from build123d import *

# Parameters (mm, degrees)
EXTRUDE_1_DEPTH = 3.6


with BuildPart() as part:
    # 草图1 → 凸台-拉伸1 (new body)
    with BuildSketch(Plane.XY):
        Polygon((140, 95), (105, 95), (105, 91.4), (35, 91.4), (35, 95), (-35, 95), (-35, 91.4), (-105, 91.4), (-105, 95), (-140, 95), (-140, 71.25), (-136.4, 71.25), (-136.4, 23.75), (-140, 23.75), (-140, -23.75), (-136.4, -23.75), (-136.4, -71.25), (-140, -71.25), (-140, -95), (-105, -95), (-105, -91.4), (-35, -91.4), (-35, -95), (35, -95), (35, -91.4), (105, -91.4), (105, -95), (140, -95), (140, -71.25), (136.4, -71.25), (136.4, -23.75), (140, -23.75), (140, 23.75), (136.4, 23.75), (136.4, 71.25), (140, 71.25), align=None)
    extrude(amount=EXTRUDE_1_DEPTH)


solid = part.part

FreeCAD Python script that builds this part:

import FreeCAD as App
import Part
import Sketcher
Q = App.Units.Quantity

doc = App.newDocument("Part")
body = doc.addObject("PartDesign::Body", "Body")

# Sketch on XY plane
sketch1 = body.newObject("Sketcher::SketchObject", "Sketch")
sketch1.AttachmentSupport = (doc.getObject("XY_Plane"), [""])
sketch1.MapMode = "FlatFace"
sketch1.addGeometry([
    Part.LineSegment(App.Vector(140, 95, 0), App.Vector(105, 95, 0)),  # 0
    Part.LineSegment(App.Vector(105, 95, 0), App.Vector(105, 91.4, 0)),  # 1
    Part.LineSegment(App.Vector(105, 91.4, 0), App.Vector(35, 91.4, 0)),  # 2
    Part.LineSegment(App.Vector(35, 91.4, 0), App.Vector(35, 95, 0)),  # 3
    Part.LineSegment(App.Vector(35, 95, 0), App.Vector(-35, 95, 0)),  # 4
    Part.LineSegment(App.Vector(-35, 95, 0), App.Vector(-35, 91.4, 0)),  # 5
    Part.LineSegment(App.Vector(-35, 91.4, 0), App.Vector(-105, 91.4, 0)),  # 6
    Part.LineSegment(App.Vector(-105, 91.4, 0), App.Vector(-105, 95, 0)),  # 7
    Part.LineSegment(App.Vector(-105, 95, 0), App.Vector(-140, 95, 0)),  # 8
    Part.LineSegment(App.Vector(-140, 95, 0), App.Vector(-140, 71.2, 0)),  # 9
    Part.LineSegment(App.Vector(-140, 71.2, 0), App.Vector(-136.4, 71.2, 0)),  # 10
    Part.LineSegment(App.Vector(-136.4, 71.2, 0), App.Vector(-136.4, 23.8, 0)),  # 11
    Part.LineSegment(App.Vector(-136.4, 23.8, 0), App.Vector(-140, 23.8, 0)),  # 12
    Part.LineSegment(App.Vector(-140, 23.8, 0), App.Vector(-140, -23.8, 0)),  # 13
    Part.LineSegment(App.Vector(-140, -23.8, 0), App.Vector(-136.4, -23.8, 0)),  # 14
    Part.LineSegment(App.Vector(-136.4, -23.8, 0), App.Vector(-136.4, -71.2, 0)),  # 15
    Part.LineSegment(App.Vector(-136.4, -71.2, 0), App.Vector(-140, -71.2, 0)),  # 16
    Part.LineSegment(App.Vector(-140, -71.2, 0), App.Vector(-140, -95, 0)),  # 17
    Part.LineSegment(App.Vector(-140, -95, 0), App.Vector(-105, -95, 0)),  # 18
    Part.LineSegment(App.Vector(-105, -95, 0), App.Vector(-105, -91.4, 0)),  # 19
    Part.LineSegment(App.Vector(-105, -91.4, 0), App.Vector(-35, -91.4, 0)),  # 20
    Part.LineSegment(App.Vector(-35, -91.4, 0), App.Vector(-35, -95, 0)),  # 21
    Part.LineSegment(App.Vector(-35, -95, 0), App.Vector(35, -95, 0)),  # 22
    Part.LineSegment(App.Vector(35, -95, 0), App.Vector(35, -91.4, 0)),  # 23
    Part.LineSegment(App.Vector(35, -91.4, 0), App.Vector(105, -91.4, 0)),  # 24
    Part.LineSegment(App.Vector(105, -91.4, 0), App.Vector(105, -95, 0)),  # 25
    Part.LineSegment(App.Vector(105, -95, 0), App.Vector(140, -95, 0)),  # 26
    Part.LineSegment(App.Vector(140, -95, 0), App.Vector(140, -71.2, 0)),  # 27
    Part.LineSegment(App.Vector(140, -71.2, 0), App.Vector(136.4, -71.2, 0)),  # 28
    Part.LineSegment(App.Vector(136.4, -71.2, 0), App.Vector(136.4, -23.8, 0)),  # 29
    Part.LineSegment(App.Vector(136.4, -23.8, 0), App.Vector(140, -23.8, 0)),  # 30
    Part.LineSegment(App.Vector(140, -23.8, 0), App.Vector(140, 23.8, 0)),  # 31
    Part.LineSegment(App.Vector(140, 23.8, 0), App.Vector(136.4, 23.8, 0)),  # 32
    Part.LineSegment(App.Vector(136.4, 23.8, 0), App.Vector(136.4, 71.2, 0)),  # 33
    Part.LineSegment(App.Vector(136.4, 71.2, 0), App.Vector(140, 71.2, 0)),  # 34
    Part.LineSegment(App.Vector(140, 71.2, 0), App.Vector(140, 95, 0)),  # 35
], False)
sketch1.addConstraint([
    Sketcher.Constraint("Coincident", 0, 2, 1, 1),
    Sketcher.Constraint("Coincident", 1, 2, 2, 1),
    Sketcher.Constraint("Coincident", 2, 2, 3, 1),
    Sketcher.Constraint("Coincident", 3, 2, 4, 1),
    Sketcher.Constraint("Coincident", 4, 2, 5, 1),
    Sketcher.Constraint("Coincident", 5, 2, 6, 1),
    Sketcher.Constraint("Coincident", 6, 2, 7, 1),
    Sketcher.Constraint("Coincident", 7, 2, 8, 1),
    Sketcher.Constraint("Coincident", 8, 2, 9, 1),
    Sketcher.Constraint("Coincident", 9, 2, 10, 1),
    Sketcher.Constraint("Coincident", 10, 2, 11, 1),
    Sketcher.Constraint("Coincident", 11, 2, 12, 1),
    Sketcher.Constraint("Coincident", 12, 2, 13, 1),
    Sketcher.Constraint("Coincident", 13, 2, 14, 1),
    Sketcher.Constraint("Coincident", 14, 2, 15, 1),
    Sketcher.Constraint("Coincident", 15, 2, 16, 1),
    Sketcher.Constraint("Coincident", 16, 2, 17, 1),
    Sketcher.Constraint("Coincident", 17, 2, 18, 1),
    Sketcher.Constraint("Coincident", 18, 2, 19, 1),
    Sketcher.Constraint("Coincident", 19, 2, 20, 1),
    Sketcher.Constraint("Coincident", 20, 2, 21, 1),
    Sketcher.Constraint("Coincident", 21, 2, 22, 1),
    Sketcher.Constraint("Coincident", 22, 2, 23, 1),
    Sketcher.Constraint("Coincident", 23, 2, 24, 1),
    Sketcher.Constraint("Coincident", 24, 2, 25, 1),
    Sketcher.Constraint("Coincident", 25, 2, 26, 1),
    Sketcher.Constraint("Coincident", 26, 2, 27, 1),
    Sketcher.Constraint("Coincident", 27, 2, 28, 1),
    Sketcher.Constraint("Coincident", 28, 2, 29, 1),
    Sketcher.Constraint("Coincident", 29, 2, 30, 1),
    Sketcher.Constraint("Coincident", 30, 2, 31, 1),
    Sketcher.Constraint("Coincident", 31, 2, 32, 1),
    Sketcher.Constraint("Coincident", 32, 2, 33, 1),
    Sketcher.Constraint("Coincident", 33, 2, 34, 1),
    Sketcher.Constraint("Coincident", 34, 2, 35, 1),
    Sketcher.Constraint("Coincident", 35, 2, 0, 1),
    Sketcher.Constraint("Horizontal", 0),
    Sketcher.Constraint("Vertical", 1),
    Sketcher.Constraint("Horizontal", 2),
    Sketcher.Constraint("Vertical", 3),
    Sketcher.Constraint("Horizontal", 4),
    Sketcher.Constraint("Vertical", 5),
    Sketcher.Constraint("Horizontal", 6),
    Sketcher.Constraint("Vertical", 7),
    Sketcher.Constraint("Horizontal", 8),
    Sketcher.Constraint("Vertical", 9),
    Sketcher.Constraint("Horizontal", 10),
    Sketcher.Constraint("Vertical", 11),
    Sketcher.Constraint("Horizontal", 12),
    Sketcher.Constraint("Vertical", 13),
    Sketcher.Constraint("Horizontal", 14),
    Sketcher.Constraint("Vertical", 15),
    Sketcher.Constraint("Horizontal", 16),
    Sketcher.Constraint("Vertical", 17),
    Sketcher.Constraint("Horizontal", 18),
    Sketcher.Constraint("Vertical", 19),
    Sketcher.Constraint("Horizontal", 20),
    Sketcher.Constraint("Vertical", 21),
    Sketcher.Constraint("Horizontal", 22),
    Sketcher.Constraint("Vertical", 23),
    Sketcher.Constraint("Horizontal", 24),
    Sketcher.Constraint("Vertical", 25),
    Sketcher.Constraint("Horizontal", 26),
    Sketcher.Constraint("Vertical", 27),
    Sketcher.Constraint("Horizontal", 28),
    Sketcher.Constraint("Vertical", 29),
    Sketcher.Constraint("Horizontal", 30),
    Sketcher.Constraint("Vertical", 31),
    Sketcher.Constraint("Horizontal", 32),
    Sketcher.Constraint("Vertical", 33),
    Sketcher.Constraint("Horizontal", 34),
    Sketcher.Constraint("Vertical", 35),
    Sketcher.Constraint("Symmetric", 0, 2, 18, 2, -1, 1),
    Sketcher.Constraint("Symmetric", 2, 2, 20, 2, -1, 1),
    Sketcher.Constraint("Symmetric", 4, 2, 22, 2, -1, 1),
    Sketcher.Constraint("Symmetric", 6, 2, 24, 2, -1, 1),
    Sketcher.Constraint("Symmetric", 8, 2, 26, 2, -1, 1),
    Sketcher.Constraint("Symmetric", 10, 2, 28, 2, -1, 1),
    Sketcher.Constraint("Symmetric", 12, 2, 30, 2, -1, 1),
    Sketcher.Constraint("Symmetric", 14, 2, 32, 2, -1, 1),
    Sketcher.Constraint("Symmetric", 16, 2, 34, 2, -1, 1),
    Sketcher.Constraint("Symmetric", 2, 2, 5, 2, -2),
    Sketcher.Constraint("Symmetric", 0, 2, 7, 2, -2),
    Sketcher.Constraint("Symmetric", 16, 2, 27, 2, -2),
    Sketcher.Constraint("Symmetric", 14, 2, 29, 2, -2),
    Sketcher.Constraint("Horizontal", 0, 2, 3, 2),
    Sketcher.Constraint("Vertical", 9, 2, 12, 2),
    Sketcher.Constraint("Equal", 2, 4),
    Sketcher.Constraint("Equal", 34, 1),
    Sketcher.Constraint("Equal", 11, 13),
    Sketcher.Constraint("DistanceX", 0, 2, 0, 1, Q("35 mm")),
    Sketcher.Constraint("DistanceX", 2, 2, 2, 1, Q("70 mm")),
    Sketcher.Constraint("DistanceX", 10, 1, 10, 2, Q("3.6 mm")),
    Sketcher.Constraint("DistanceY", 11, 2, 11, 1, Q("47.5 mm")),
    Sketcher.Constraint("DistanceY", -1, 1, 0, 2, Q("95 mm")),
])
pad1 = body.newObject("PartDesign::Pad", "Pad")
pad1.Profile = sketch1
pad1.Length = 3.6

doc.recompute()
